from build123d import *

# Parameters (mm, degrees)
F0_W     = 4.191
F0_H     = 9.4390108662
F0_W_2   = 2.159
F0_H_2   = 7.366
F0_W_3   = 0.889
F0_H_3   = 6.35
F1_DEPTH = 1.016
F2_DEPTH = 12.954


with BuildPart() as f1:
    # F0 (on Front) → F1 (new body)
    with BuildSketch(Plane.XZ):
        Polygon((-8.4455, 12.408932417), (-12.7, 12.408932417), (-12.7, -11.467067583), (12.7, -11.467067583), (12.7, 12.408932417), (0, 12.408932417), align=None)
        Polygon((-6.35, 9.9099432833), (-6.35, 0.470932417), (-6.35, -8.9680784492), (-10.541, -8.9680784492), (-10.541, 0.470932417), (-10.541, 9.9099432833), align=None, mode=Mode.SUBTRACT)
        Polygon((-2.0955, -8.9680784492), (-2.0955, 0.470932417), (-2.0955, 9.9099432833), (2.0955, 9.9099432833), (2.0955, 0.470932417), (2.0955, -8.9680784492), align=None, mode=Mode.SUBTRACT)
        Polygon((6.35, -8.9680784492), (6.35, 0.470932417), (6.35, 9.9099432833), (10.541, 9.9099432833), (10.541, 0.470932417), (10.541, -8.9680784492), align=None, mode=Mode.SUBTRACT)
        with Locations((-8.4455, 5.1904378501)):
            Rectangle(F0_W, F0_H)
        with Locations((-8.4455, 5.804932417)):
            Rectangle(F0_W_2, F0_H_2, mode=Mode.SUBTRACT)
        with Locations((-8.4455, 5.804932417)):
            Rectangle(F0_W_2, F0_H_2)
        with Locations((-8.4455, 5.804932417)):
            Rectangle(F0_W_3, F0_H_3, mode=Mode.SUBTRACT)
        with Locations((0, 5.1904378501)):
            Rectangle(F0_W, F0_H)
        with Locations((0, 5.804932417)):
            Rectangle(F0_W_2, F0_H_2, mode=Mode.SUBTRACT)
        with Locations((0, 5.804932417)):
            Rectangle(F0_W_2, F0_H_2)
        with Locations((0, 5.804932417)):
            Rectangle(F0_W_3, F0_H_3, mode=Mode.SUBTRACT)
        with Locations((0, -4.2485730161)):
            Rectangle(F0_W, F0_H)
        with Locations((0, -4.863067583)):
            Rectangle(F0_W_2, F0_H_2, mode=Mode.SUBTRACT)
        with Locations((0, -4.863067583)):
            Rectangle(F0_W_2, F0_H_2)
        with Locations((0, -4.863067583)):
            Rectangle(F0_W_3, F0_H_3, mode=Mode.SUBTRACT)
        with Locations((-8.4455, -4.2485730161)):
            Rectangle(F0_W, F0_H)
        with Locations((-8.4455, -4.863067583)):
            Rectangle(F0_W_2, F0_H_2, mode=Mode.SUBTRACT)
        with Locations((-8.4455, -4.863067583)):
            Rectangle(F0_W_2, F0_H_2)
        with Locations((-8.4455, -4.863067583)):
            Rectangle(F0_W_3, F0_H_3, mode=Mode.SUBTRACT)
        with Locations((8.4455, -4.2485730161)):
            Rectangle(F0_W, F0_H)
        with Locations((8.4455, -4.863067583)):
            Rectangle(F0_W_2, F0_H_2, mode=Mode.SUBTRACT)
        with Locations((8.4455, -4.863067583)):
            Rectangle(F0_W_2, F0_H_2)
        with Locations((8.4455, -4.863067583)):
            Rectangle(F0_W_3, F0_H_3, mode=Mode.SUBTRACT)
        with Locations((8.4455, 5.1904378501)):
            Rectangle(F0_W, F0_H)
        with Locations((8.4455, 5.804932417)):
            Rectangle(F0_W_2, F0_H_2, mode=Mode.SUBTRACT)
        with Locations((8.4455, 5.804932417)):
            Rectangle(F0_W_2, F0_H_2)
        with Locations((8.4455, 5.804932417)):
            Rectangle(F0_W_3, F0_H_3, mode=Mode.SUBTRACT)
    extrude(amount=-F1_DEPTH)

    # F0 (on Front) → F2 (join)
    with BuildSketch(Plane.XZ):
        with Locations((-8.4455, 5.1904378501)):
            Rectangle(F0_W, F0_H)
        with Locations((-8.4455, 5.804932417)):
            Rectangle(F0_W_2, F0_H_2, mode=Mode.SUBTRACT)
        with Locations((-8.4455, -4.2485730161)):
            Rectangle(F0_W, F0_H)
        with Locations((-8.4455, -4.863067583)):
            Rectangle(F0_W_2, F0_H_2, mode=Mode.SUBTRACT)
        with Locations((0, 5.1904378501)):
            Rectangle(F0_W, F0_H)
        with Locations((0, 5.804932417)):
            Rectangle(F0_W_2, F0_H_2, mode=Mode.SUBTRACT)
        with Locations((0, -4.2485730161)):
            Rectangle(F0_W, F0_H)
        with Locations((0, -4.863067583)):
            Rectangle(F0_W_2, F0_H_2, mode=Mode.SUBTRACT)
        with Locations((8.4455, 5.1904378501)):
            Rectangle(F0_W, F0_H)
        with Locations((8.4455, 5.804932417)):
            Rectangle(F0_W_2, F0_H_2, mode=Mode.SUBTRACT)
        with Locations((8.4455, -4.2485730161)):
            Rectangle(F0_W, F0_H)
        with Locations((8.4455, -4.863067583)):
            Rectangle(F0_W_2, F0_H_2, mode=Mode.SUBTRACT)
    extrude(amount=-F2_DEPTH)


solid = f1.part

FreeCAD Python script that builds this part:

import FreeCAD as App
import Part
import Sketcher

V = App.Vector
Q = App.Units.Quantity


def add_polygon(sketch, points):
    """Adds a closed chain of lines whose ends are joined by coincident constraints."""
    first, n = sketch.GeometryCount, len(points)
    for a, b in zip(points, points[1:] + points[:1]):
        sketch.addGeometry(Part.LineSegment(App.Vector(*a, 0), App.Vector(*b, 0)), False)
    for i in range(n):
        sketch.addConstraint(Sketcher.Constraint("Coincident", first + i, 2, first + (i + 1) % n, 1))

doc = App.newDocument("Part")
params = doc.addObject("Spreadsheet::Sheet", "Params")
for row, (alias, value) in enumerate([
    ("sketch1_width", "1 in"),
    ("sketch1_height", "0.94 in"),
    ("sketch1_height2", "0.25 in"),
    ("sketch1_width2", "0.035 in"),
    ("pad1_length", "0.04 in"),
    ("sketch2_height", "0.29 in"),
    ("sketch2_width", "0.165 in"),
    ("sketch2_width2", "0.085 in"),
    ("pad2_length", "0.51 in"),
], start=1):
    params.set(f"A{row}", alias)
    params.set(f"B{row}", "=" + value)
    params.setAlias(f"B{row}", alias)

body = doc.addObject("PartDesign::Body", "Body")

sketch1 = body.newObject("Sketcher::SketchObject", "Sketch")
sketch1.AttachmentSupport = (doc.getObject("XZ_Plane"), [""])
sketch1.MapMode = "FlatFace"
add_polygon(sketch1, [(-12.7, 12.4), (-12.7, -11.5), (12.7, -11.5), (12.7, 12.4)])
add_polygon(sketch1, [(-8, -8), (-8.9, -8), (-8.9, -1.7), (-8, -1.7)])
add_polygon(sketch1, [(0.4, -8), (-0.4, -8), (-0.4, -1.7), (0.4, -1.7)])
add_polygon(sketch1, [(8.9, -8), (8, -8), (8, -1.7), (8.9, -1.7)])
add_polygon(sketch1, [(-8, 2.6), (-8.9, 2.6), (-8.9, 9), (-8, 9)])
add_polygon(sketch1, [(0.4, 2.6), (-0.4, 2.6), (-0.4, 9), (0.4, 9)])
add_polygon(sketch1, [(8.9, 2.6), (8, 2.6), (8, 9), (8.9, 9)])
sketch1.addConstraint(Sketcher.Constraint("Vertical", 0))
sketch1.addConstraint(Sketcher.Constraint("Horizontal", 1))
sketch1.addConstraint(Sketcher.Constraint("Vertical", 2))
sketch1.addConstraint(Sketcher.Constraint("Horizontal", 3))
sketch1.addConstraint(Sketcher.Constraint("Horizontal", 4))
sketch1.addConstraint(Sketcher.Constraint("Vertical", 5))
sketch1.addConstraint(Sketcher.Constraint("Horizontal", 6))
sketch1.addConstraint(Sketcher.Constraint("Vertical", 7))
sketch1.addConstraint(Sketcher.Constraint("Horizontal", 8))
sketch1.addConstraint(Sketcher.Constraint("Vertical", 9))
sketch1.addConstraint(Sketcher.Constraint("Horizontal", 10))
sketch1.addConstraint(Sketcher.Constraint("Vertical", 11))
sketch1.addConstraint(Sketcher.Constraint("Horizontal", 12))
sketch1.addConstraint(Sketcher.Constraint("Vertical", 13))
sketch1.addConstraint(Sketcher.Constraint("Horizontal", 14))
sketch1.addConstraint(Sketcher.Constraint("Vertical", 15))
sketch1.addConstraint(Sketcher.Constraint("Horizontal", 16))
sketch1.addConstraint(Sketcher.Constraint("Vertical", 17))
sketch1.addConstraint(Sketcher.Constraint("Horizontal", 18))
sketch1.addConstraint(Sketcher.Constraint("Vertical", 19))
sketch1.addConstraint(Sketcher.Constraint("Horizontal", 20))
sketch1.addConstraint(Sketcher.Constraint("Vertical", 21))
sketch1.addConstraint(Sketcher.Constraint("Horizontal", 22))
sketch1.addConstraint(Sketcher.Constraint("Vertical", 23))
sketch1.addConstraint(Sketcher.Constraint("Horizontal", 24))
sketch1.addConstraint(Sketcher.Constraint("Vertical", 25))
sketch1.addConstraint(Sketcher.Constraint("Horizontal", 26))
sketch1.addConstraint(Sketcher.Constraint("Vertical", 27))
sketch1.addConstraint(Sketcher.Constraint("Symmetric", 7, 2, 12, 2, -2))
sketch1.addConstraint(Sketcher.Constraint("Symmetric", 5, 2, 14, 2, -2))
sketch1.addConstraint(Sketcher.Constraint("Symmetric", 19, 2, 24, 2, -2))
sketch1.addConstraint(Sketcher.Constraint("Symmetric", 17, 2, 26, 2, -2))
sketch1.addConstraint(Sketcher.Constraint("Horizontal", 7, 2, 8, 2))
sketch1.addConstraint(Sketcher.Constraint("Horizontal", 6, 2, 9, 2))
sketch1.addConstraint(Sketcher.Constraint("Horizontal", 19, 2, 20, 2))
sketch1.addConstraint(Sketcher.Constraint("Horizontal", 18, 2, 21, 2))
sketch1.addConstraint(Sketcher.Constraint("Vertical", 5, 2, 16, 2))
sketch1.addConstraint(Sketcher.Constraint("Vertical", 7, 2, 18, 2))
sketch1.addConstraint(Sketcher.Constraint("Vertical", 9, 2, 20, 2))
sketch1.addConstraint(Sketcher.Constraint("Vertical", 11, 2, 22, 2))
sketch1.addConstraint(Sketcher.Constraint("Equal", 6, 8))
sketch1.addConstraint(Sketcher.Constraint("Equal", 15, 17))
sketch1.addConstraint(Sketcher.Constraint("DistanceX", 1, 1, 1, 2, Q("1 in")))
sketch1.addConstraint(Sketcher.Constraint("DistanceY", 0, 2, 0, 1, Q("0.94 in")))
sketch1.addConstraint(Sketcher.Constraint("DistanceY", 5, 1, 5, 2, Q("0.25 in")))
sketch1.addConstraint(Sketcher.Constraint("DistanceX", 0, 2, -1, 1, Q("0.5 in")))
sketch1.addConstraint(Sketcher.Constraint("DistanceX", 4, 2, 4, 1, Q("0.035 in")))
sketch1.addConstraint(Sketcher.Constraint("DistanceX", 4, 2, -1, 1, Q("0.35 in")))
sketch1.addConstraint(Sketcher.Constraint("DistanceY", 5, 2, 16, 2, Q("0.17 in")))
sketch1.addConstraint(Sketcher.Constraint("DistanceY", 0, 2, 4, 2, Q("0.135 in")))
sketch1.addConstraint(Sketcher.Constraint("DistanceX", 8, 2, -1, 1, Q("0.0175 in")))
sketch1.addConstraint(Sketcher.Constraint("DistanceY", 0, 2, -1, 1, 11.467068))
sketch1.setExpression("Constraints[70]", "Params.sketch1_width")
sketch1.setExpression("Constraints[71]", "Params.sketch1_height")
sketch1.setExpression("Constraints[72]", "Params.sketch1_height2")
sketch1.setExpression("Constraints[74]", "Params.sketch1_width2")
pad1 = body.newObject("PartDesign::Pad", "Pad")
pad1.Profile = sketch1
pad1.setExpression("Length", "Params.pad1_length")
pad1.Reversed = True

sketch2 = body.newObject("Sketcher::SketchObject", "Sketch001")
sketch2.AttachmentSupport = (doc.getObject("XZ_Plane"), [""])
sketch2.MapMode = "FlatFace"
add_polygon(sketch2, [(-10.5, 9.9), (-10.5, -9), (-6.3, -9), (-6.3, 9.9)])
add_polygon(sketch2, [(-7.4, -8.5), (-9.5, -8.5), (-9.5, -1.2), (-7.4, -1.2)])
add_polygon(sketch2, [(-7.4, 2.1), (-9.5, 2.1), (-9.5, 9.5), (-7.4, 9.5)])
add_polygon(sketch2, [(-2.1, 9.9), (-2.1, -9), (2.1, -9), (2.1, 9.9)])
add_polygon(sketch2, [(1.1, -8.5), (-1.1, -8.5), (-1.1, -1.2), (1.1, -1.2)])
add_polygon(sketch2, [(1.1, 2.1), (-1.1, 2.1), (-1.1, 9.5), (1.1, 9.5)])
add_polygon(sketch2, [(6.3, 9.9), (6.3, -9), (10.5, -9), (10.5, 9.9)])
add_polygon(sketch2, [(9.5, -8.5), (7.4, -8.5), (7.4, -1.2), (9.5, -1.2)])
add_polygon(sketch2, [(9.5, 2.1), (7.4, 2.1), (7.4, 9.5), (9.5, 9.5)])
sketch2.addConstraint(Sketcher.Constraint("Vertical", 0))
sketch2.addConstraint(Sketcher.Constraint("Horizontal", 1))
sketch2.addConstraint(Sketcher.Constraint("Vertical", 2))
sketch2.addConstraint(Sketcher.Constraint("Horizontal", 3))
sketch2.addConstraint(Sketcher.Constraint("Horizontal", 4))
sketch2.addConstraint(Sketcher.Constraint("Vertical", 5))
sketch2.addConstraint(Sketcher.Constraint("Horizontal", 6))
sketch2.addConstraint(Sketcher.Constraint("Vertical", 7))
sketch2.addConstraint(Sketcher.Constraint("Horizontal", 8))
sketch2.addConstraint(Sketcher.Constraint("Vertical", 9))
sketch2.addConstraint(Sketcher.Constraint("Horizontal", 10))
sketch2.addConstraint(Sketcher.Constraint("Vertical", 11))
sketch2.addConstraint(Sketcher.Constraint("Vertical", 12))
sketch2.addConstraint(Sketcher.Constraint("Horizontal", 13))
sketch2.addConstraint(Sketcher.Constraint("Vertical", 14))
sketch2.addConstraint(Sketcher.Constraint("Horizontal", 15))
sketch2.addConstraint(Sketcher.Constraint("Horizontal", 16))
sketch2.addConstraint(Sketcher.Constraint("Vertical", 17))
sketch2.addConstraint(Sketcher.Constraint("Horizontal", 18))
sketch2.addConstraint(Sketcher.Constraint("Vertical", 19))
sketch2.addConstraint(Sketcher.Constraint("Horizontal", 20))
sketch2.addConstraint(Sketcher.Constraint("Vertical", 21))
sketch2.addConstraint(Sketcher.Constraint("Horizontal", 22))
sketch2.addConstraint(Sketcher.Constraint("Vertical", 23))
sketch2.addConstraint(Sketcher.Constraint("Vertical", 24))
sketch2.addConstraint(Sketcher.Constraint("Horizontal", 25))
sketch2.addConstraint(Sketcher.Constraint("Vertical", 26))
sketch2.addConstraint(Sketcher.Constraint("Horizontal", 27))
sketch2.addConstraint(Sketcher.Constraint("Horizontal", 28))
sketch2.addConstraint(Sketcher.Constraint("Vertical", 29))
sketch2.addConstraint(Sketcher.Constraint("Horizontal", 30))
sketch2.addConstraint(Sketcher.Constraint("Vertical", 31))
sketch2.addConstraint(Sketcher.Constraint("Horizontal", 32))
sketch2.addConstraint(Sketcher.Constraint("Vertical", 33))
sketch2.addConstraint(Sketcher.Constraint("Horizontal", 34))
sketch2.addConstraint(Sketcher.Constraint("Vertical", 35))
sketch2.addConstraint(Sketcher.Constraint("Symmetric", 1, 2, 24, 2, -2))
sketch2.addConstraint(Sketcher.Constraint("Symmetric", 3, 2, 26, 2, -2))
sketch2.addConstraint(Sketcher.Constraint("Symmetric", 7, 2, 28, 2, -2))
sketch2.addConstraint(Sketcher.Constraint("Symmetric", 5, 2, 30, 2, -2))
sketch2.addConstraint(Sketcher.Constraint("Symmetric", 11, 2, 32, 2, -2))
sketch2.addConstraint(Sketcher.Constraint("Symmetric", 9, 2, 34, 2, -2))
sketch2.addConstraint(Sketcher.Constraint("Horizontal", 1, 2, 12, 2))
sketch2.addConstraint(Sketcher.Constraint("Horizontal", 3, 2, 14, 2))
sketch2.addConstraint(Sketcher.Constraint("Horizontal", 7, 2, 16, 2))
sketch2.addConstraint(Sketcher.Constraint("Horizontal", 6, 2, 17, 2))
sketch2.addConstraint(Sketcher.Constraint("Horizontal", 11, 2, 20, 2))
sketch2.addConstraint(Sketcher.Constraint("Horizontal", 10, 2, 21, 2))
sketch2.addConstraint(Sketcher.Constraint("Vertical", 5, 2, 8, 2))
sketch2.addConstraint(Sketcher.Constraint("Vertical", 7, 2, 10, 2))
sketch2.addConstraint(Sketcher.Constraint("Vertical", 17, 2, 20, 2))
sketch2.addConstraint(Sketcher.Constraint("Vertical", 19, 2, 22, 2))
sketch2.addConstraint(Sketcher.Constraint("Equal", 3, 13))
sketch2.addConstraint(Sketcher.Constraint("Equal", 10, 16))
sketch2.addConstraint(Sketcher.Constraint("Equal", 7, 9))
sketch2.addConstraint(Sketcher.Constraint("DistanceY", 5, 1, 5, 2, Q("0.29 in")))
sketch2.addConstraint(Sketcher.Constraint("DistanceX", 1, 1, 1, 2, Q("0.165 in")))
sketch2.addConstraint(Sketcher.Constraint("DistanceX", 4, 2, 4, 1, Q("0.085 in")))
sketch2.addConstraint(Sketcher.Constraint("DistanceX", 1, 2, -1, 1, Q("0.25 in")))
sketch2.addConstraint(Sketcher.Constraint("DistanceX", 6, 2, -1, 1, Q("0.29 in")))
sketch2.addConstraint(Sketcher.Constraint("DistanceY", 5, 2, 8, 2, Q("0.13 in")))
sketch2.addConstraint(Sketcher.Constraint("DistanceX", 12, 2, 16, 2, Q("0.04 in")))
sketch2.addConstraint(Sketcher.Constraint("DistanceX", 12, 2, -1, 1, Q("0.0825 in")))
sketch2.addConstraint(Sketcher.Constraint("DistanceY", 0, 2, 0, 1, 18.878022))
sketch2.addConstraint(Sketcher.Constraint("DistanceY", 0, 2, -1, 1, 8.968078))
sketch2.addConstraint(Sketcher.Constraint("DistanceY", 0, 2, 4, 2, 0.422011))
sketch2.setExpression("Constraints[91]", "Params.sketch2_height")
sketch2.setExpression("Constraints[92]", "Params.sketch2_width")
sketch2.setExpression("Constraints[93]", "Params.sketch2_width2")
pad2 = body.newObject("PartDesign::Pad", "Pad001")
pad2.Profile = sketch2
pad2.setExpression("Length", "Params.pad2_length")
pad2.Reversed = True

doc.recompute()
